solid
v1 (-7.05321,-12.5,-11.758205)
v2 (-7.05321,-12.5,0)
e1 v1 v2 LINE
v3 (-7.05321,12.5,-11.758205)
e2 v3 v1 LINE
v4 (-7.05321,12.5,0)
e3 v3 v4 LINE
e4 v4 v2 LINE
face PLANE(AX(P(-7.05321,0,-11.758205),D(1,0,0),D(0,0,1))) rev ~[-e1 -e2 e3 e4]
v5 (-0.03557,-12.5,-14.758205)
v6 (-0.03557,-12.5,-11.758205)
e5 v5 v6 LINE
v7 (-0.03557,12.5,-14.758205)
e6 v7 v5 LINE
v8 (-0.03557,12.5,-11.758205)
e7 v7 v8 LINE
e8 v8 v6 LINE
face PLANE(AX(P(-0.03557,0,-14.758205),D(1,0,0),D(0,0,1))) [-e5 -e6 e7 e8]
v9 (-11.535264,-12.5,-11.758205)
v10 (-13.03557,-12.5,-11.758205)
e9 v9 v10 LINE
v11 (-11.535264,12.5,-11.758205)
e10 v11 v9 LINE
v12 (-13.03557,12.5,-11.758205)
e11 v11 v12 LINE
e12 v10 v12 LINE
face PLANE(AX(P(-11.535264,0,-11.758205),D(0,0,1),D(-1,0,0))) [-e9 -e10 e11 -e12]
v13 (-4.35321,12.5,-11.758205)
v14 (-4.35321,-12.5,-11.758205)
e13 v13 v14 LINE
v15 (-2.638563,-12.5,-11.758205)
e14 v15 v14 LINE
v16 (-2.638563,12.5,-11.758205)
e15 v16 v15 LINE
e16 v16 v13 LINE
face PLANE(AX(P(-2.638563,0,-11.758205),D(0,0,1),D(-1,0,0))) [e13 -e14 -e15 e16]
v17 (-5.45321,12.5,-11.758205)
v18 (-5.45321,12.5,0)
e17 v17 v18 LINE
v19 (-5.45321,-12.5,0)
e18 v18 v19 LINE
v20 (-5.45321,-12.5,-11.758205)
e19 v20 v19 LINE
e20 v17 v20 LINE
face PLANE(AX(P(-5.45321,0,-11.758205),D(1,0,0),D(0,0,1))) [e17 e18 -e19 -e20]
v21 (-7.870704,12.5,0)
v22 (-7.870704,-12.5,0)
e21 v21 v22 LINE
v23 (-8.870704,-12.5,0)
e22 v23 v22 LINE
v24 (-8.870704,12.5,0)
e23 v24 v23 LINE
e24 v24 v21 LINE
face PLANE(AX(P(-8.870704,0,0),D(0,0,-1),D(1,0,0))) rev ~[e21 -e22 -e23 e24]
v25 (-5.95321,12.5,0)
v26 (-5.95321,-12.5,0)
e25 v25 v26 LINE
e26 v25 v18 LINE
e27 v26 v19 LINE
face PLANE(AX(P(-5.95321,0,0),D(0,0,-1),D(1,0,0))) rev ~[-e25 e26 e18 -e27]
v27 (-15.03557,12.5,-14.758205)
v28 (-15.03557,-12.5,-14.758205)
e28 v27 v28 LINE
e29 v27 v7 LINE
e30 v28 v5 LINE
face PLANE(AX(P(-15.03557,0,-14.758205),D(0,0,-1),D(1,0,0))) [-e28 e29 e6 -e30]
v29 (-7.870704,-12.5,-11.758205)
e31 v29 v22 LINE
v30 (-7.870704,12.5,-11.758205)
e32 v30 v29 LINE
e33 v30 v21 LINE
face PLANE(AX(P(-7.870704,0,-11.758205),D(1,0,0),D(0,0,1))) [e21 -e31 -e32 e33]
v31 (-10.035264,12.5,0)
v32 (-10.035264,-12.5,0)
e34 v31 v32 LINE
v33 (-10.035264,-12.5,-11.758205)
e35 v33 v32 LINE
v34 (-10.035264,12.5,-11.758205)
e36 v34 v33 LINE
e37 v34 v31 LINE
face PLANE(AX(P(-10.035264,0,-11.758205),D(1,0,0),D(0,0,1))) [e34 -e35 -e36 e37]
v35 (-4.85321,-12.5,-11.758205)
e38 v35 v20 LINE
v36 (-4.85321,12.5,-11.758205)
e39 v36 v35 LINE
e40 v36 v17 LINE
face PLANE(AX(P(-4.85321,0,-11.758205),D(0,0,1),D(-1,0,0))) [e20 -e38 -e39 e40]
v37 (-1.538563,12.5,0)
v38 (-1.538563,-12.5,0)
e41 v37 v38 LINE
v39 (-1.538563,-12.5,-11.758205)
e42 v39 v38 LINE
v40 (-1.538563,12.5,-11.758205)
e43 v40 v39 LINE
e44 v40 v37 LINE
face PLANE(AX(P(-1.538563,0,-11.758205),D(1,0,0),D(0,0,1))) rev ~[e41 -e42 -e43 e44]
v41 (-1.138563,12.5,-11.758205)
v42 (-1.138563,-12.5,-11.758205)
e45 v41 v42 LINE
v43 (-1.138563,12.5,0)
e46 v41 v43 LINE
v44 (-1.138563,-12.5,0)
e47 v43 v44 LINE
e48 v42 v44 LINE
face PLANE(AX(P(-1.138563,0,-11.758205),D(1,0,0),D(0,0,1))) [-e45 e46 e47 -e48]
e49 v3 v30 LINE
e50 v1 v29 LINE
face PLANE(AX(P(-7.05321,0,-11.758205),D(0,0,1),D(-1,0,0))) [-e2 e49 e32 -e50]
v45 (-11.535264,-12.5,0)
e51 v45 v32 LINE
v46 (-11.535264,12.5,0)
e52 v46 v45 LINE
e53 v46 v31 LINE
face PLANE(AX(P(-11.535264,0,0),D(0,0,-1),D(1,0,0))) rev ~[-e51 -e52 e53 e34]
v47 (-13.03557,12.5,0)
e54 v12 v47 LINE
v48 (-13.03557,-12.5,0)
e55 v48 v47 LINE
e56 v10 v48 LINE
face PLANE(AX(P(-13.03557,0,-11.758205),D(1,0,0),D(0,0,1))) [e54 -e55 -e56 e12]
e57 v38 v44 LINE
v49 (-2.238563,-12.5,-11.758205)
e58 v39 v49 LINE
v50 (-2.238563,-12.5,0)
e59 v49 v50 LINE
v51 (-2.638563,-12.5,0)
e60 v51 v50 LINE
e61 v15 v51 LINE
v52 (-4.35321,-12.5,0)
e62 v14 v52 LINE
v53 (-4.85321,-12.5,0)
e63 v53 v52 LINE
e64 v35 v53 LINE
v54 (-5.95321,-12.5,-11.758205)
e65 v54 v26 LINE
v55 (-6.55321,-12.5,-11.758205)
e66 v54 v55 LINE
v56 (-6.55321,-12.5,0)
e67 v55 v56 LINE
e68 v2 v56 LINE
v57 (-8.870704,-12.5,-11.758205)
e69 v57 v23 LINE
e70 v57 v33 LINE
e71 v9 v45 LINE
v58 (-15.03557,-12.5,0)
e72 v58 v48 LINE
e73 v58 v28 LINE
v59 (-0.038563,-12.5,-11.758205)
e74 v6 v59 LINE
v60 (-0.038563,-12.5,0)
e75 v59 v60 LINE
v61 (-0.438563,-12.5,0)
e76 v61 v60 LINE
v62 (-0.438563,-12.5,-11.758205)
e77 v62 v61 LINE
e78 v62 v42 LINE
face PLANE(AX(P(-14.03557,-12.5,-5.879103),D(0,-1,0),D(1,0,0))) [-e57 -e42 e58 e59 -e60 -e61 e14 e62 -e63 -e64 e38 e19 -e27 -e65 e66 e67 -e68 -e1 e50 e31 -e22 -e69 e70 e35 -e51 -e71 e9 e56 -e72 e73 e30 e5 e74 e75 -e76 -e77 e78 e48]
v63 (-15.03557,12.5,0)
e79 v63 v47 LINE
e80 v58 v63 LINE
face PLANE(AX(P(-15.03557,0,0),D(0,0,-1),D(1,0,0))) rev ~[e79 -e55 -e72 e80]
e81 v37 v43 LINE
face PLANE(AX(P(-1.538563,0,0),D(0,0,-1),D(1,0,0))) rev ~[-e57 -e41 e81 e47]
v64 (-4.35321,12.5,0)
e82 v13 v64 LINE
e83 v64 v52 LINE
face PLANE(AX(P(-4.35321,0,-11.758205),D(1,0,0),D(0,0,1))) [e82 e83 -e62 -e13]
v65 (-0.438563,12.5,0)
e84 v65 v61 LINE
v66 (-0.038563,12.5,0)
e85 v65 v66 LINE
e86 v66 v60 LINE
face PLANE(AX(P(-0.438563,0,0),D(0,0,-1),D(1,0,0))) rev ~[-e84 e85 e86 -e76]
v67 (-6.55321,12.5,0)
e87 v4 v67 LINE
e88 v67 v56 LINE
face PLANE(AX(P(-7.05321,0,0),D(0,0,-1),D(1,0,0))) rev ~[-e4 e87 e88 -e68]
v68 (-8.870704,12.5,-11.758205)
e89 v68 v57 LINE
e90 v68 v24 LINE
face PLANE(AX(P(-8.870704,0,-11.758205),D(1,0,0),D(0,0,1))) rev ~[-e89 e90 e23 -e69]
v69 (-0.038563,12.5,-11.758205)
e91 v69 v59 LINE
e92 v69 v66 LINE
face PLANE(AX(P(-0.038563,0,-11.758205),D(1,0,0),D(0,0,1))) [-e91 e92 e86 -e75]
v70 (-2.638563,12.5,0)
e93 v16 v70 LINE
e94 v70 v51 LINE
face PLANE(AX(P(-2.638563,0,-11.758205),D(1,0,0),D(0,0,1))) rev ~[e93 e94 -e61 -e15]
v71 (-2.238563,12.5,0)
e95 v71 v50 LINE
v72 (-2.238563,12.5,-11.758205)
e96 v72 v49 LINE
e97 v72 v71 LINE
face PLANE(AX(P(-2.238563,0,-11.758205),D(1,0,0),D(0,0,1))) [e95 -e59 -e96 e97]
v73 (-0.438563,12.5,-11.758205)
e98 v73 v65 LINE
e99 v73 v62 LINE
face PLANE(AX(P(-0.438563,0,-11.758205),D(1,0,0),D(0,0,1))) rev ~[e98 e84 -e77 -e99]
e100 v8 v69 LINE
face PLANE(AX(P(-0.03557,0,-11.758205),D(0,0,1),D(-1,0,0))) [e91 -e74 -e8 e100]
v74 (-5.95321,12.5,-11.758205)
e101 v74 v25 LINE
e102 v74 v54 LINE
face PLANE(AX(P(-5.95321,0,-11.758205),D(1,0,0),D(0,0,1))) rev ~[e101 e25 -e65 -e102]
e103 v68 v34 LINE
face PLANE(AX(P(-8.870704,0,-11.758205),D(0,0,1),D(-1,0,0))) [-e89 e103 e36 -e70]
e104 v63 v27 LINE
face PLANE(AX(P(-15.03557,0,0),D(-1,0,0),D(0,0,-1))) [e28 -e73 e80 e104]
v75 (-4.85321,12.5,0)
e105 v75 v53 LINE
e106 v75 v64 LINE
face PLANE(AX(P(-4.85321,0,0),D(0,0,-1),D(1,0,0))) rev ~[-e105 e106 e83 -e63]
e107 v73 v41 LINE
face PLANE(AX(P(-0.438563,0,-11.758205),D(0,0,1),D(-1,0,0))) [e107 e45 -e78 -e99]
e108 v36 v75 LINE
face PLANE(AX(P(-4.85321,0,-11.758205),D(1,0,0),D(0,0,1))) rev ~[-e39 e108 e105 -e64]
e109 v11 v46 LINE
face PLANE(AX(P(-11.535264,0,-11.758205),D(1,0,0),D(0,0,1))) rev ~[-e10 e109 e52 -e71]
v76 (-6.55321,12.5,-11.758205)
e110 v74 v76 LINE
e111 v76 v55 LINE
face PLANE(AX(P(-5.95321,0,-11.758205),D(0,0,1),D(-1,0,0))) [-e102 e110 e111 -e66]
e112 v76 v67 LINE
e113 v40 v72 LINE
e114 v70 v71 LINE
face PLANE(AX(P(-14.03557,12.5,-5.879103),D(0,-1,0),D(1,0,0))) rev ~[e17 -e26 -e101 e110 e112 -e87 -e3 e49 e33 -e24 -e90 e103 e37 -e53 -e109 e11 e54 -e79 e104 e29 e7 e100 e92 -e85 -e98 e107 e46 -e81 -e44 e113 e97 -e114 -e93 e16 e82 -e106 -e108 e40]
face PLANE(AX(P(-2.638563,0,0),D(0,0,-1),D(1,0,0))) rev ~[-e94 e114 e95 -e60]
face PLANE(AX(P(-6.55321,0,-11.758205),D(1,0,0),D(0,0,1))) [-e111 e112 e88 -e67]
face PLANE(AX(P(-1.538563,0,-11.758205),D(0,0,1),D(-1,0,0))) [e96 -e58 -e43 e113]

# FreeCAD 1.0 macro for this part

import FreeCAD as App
import Part
import Sketcher
Q = App.Units.Quantity

doc = App.newDocument("Part")
body = doc.addObject("PartDesign::Body", "Body")

sketch1 = doc.addObject("Sketcher::SketchObject", "Sketch")
body.addObject(sketch1)
sketch1.AttachmentSupport = (doc.XZ_Plane, [""])
sketch1.MapMode = "FlatFace"
sketch1.addGeometry([
    Part.LineSegment(App.Vector(-44.6, -22.9, 0), App.Vector(57, -22.9, 0)),
    Part.LineSegment(App.Vector(57, -22.9, 0), App.Vector(57, 7.6, 0)),
    Part.LineSegment(App.Vector(57, 7.6, 0), App.Vector(51.9, 7.6, 0)),
    Part.LineSegment(App.Vector(51.9, 7.6, 0), App.Vector(51.9, -17.8, 0)),
    Part.LineSegment(App.Vector(51.9, -17.8, 0), App.Vector(40.7, -17.8, 0)),
    Part.LineSegment(App.Vector(40.7, -17.8, 0), App.Vector(40.7, 7.6, 0)),
    Part.LineSegment(App.Vector(40.7, 7.6, 0), App.Vector(38.1, 7.6, 0)),
    Part.LineSegment(App.Vector(38.1, 7.6, 0), App.Vector(38.1, -17.8, 0)),
    Part.LineSegment(App.Vector(38.1, -17.8, 0), App.Vector(25.9, -17.8, 0)),
    Part.LineSegment(App.Vector(25.9, -17.8, 0), App.Vector(25.9, 7.6, 0)),
    Part.LineSegment(App.Vector(25.9, 7.6, 0), App.Vector(22.1, 7.6, 0)),
    Part.LineSegment(App.Vector(22.1, 7.6, 0), App.Vector(22.1, -17.8, 0)),
    Part.LineSegment(App.Vector(22.1, -17.8, 0), App.Vector(8.1, -17.8, 0)),
    Part.LineSegment(App.Vector(8.1, -17.8, 0), App.Vector(8.1, 7.6, 0)),
    Part.LineSegment(App.Vector(8.1, 7.6, 0), App.Vector(3.1, 7.6, 0)),
    Part.LineSegment(App.Vector(3.1, 7.6, 0), App.Vector(3.1, -17.8, 0)),
    Part.LineSegment(App.Vector(3.1, -17.8, 0), App.Vector(-17.8, -17.8, 0)),
    Part.LineSegment(App.Vector(-17.8, -17.8, 0), App.Vector(-17.8, 7.6, 0)),
    Part.LineSegment(App.Vector(-17.8, 7.6, 0), App.Vector(-20.4, 7.6, 0)),
    Part.LineSegment(App.Vector(-20.4, 7.6, 0), App.Vector(-20.4, -17.8, 0)),
    Part.LineSegment(App.Vector(-20.4, -17.8, 0), App.Vector(-27.5, -17.8, 0)),
    Part.LineSegment(App.Vector(-27.5, -17.8, 0), App.Vector(-27.5, 7.6, 0)),
    Part.LineSegment(App.Vector(-27.5, 7.6, 0), App.Vector(-31.3, 7.6, 0)),
    Part.LineSegment(App.Vector(-31.3, 7.6, 0), App.Vector(-31.3, -17.8, 0)),
    Part.LineSegment(App.Vector(-31.3, -17.8, 0), App.Vector(-39.5, -17.8, 0)),
    Part.LineSegment(App.Vector(-39.5, -17.8, 0), App.Vector(-39.5, 7.6, 0)),
    Part.LineSegment(App.Vector(-39.5, 7.6, 0), App.Vector(-44.6, 7.6, 0)),
    Part.LineSegment(App.Vector(-44.6, 7.6, 0), App.Vector(-44.6, -22.9, 0)),
], False)
sketch1.addConstraint([
    Sketcher.Constraint("Coincident", 0, 2, 1, 1),
    Sketcher.Constraint("Coincident", 1, 2, 2, 1),
    Sketcher.Constraint("Coincident", 2, 2, 3, 1),
    Sketcher.Constraint("Coincident", 3, 2, 4, 1),
    Sketcher.Constraint("Coincident", 4, 2, 5, 1),
    Sketcher.Constraint("Coincident", 5, 2, 6, 1),
    Sketcher.Constraint("Coincident", 6, 2, 7, 1),
    Sketcher.Constraint("Coincident", 7, 2, 8, 1),
    Sketcher.Constraint("Coincident", 8, 2, 9, 1),
    Sketcher.Constraint("Coincident", 9, 2, 10, 1),
    Sketcher.Constraint("Coincident", 10, 2, 11, 1),
    Sketcher.Constraint("Coincident", 11, 2, 12, 1),
    Sketcher.Constraint("Coincident", 12, 2, 13, 1),
    Sketcher.Constraint("Coincident", 13, 2, 14, 1),
    Sketcher.Constraint("Coincident", 14, 2, 15, 1),
    Sketcher.Constraint("Coincident", 15, 2, 16, 1),
    Sketcher.Constraint("Coincident", 16, 2, 17, 1),
    Sketcher.Constraint("Coincident", 17, 2, 18, 1),
    Sketcher.Constraint("Coincident", 18, 2, 19, 1),
    Sketcher.Constraint("Coincident", 19, 2, 20, 1),
    Sketcher.Constraint("Coincident", 20, 2, 21, 1),
    Sketcher.Constraint("Coincident", 21, 2, 22, 1),
    Sketcher.Constraint("Coincident", 22, 2, 23, 1),
    Sketcher.Constraint("Coincident", 23, 2, 24, 1),
    Sketcher.Constraint("Coincident", 24, 2, 25, 1),
    Sketcher.Constraint("Coincident", 25, 2, 26, 1),
    Sketcher.Constraint("Coincident", 26, 2, 27, 1),
    Sketcher.Constraint("Coincident", 27, 2, 0, 1),
    Sketcher.Constraint("Horizontal", 0),
    Sketcher.Constraint("Vertical", 1),
    Sketcher.Constraint("Horizontal", 2),
    Sketcher.Constraint("Vertical", 3),
    Sketcher.Constraint("Horizontal", 4),
    Sketcher.Constraint("Vertical", 5),
    Sketcher.Constraint("Horizontal", 6),
    Sketcher.Constraint("Vertical", 7),
    Sketcher.Constraint("Horizontal", 8),
    Sketcher.Constraint("Vertical", 9),
    Sketcher.Constraint("Horizontal", 10),
    Sketcher.Constraint("Vertical", 11),
    Sketcher.Constraint("Horizontal", 12),
    Sketcher.Constraint("Vertical", 13),
    Sketcher.Constraint("Horizontal", 14),
    Sketcher.Constraint("Vertical", 15),
    Sketcher.Constraint("Horizontal", 16),
    Sketcher.Constraint("Vertical", 17),
    Sketcher.Constraint("Horizontal", 18),
    Sketcher.Constraint("Vertical", 19),
    Sketcher.Constraint("Horizontal", 20),
    Sketcher.Constraint("Vertical", 21),
    Sketcher.Constraint("Horizontal", 22),
    Sketcher.Constraint("Vertical", 23),
    Sketcher.Constraint("Horizontal", 24),
    Sketcher.Constraint("Vertical", 25),
    Sketcher.Constraint("Horizontal", 26),
    Sketcher.Constraint("Vertical", 27),
    Sketcher.Constraint("Horizontal", 2, 2, 5, 2),
    Sketcher.Constraint("Horizontal", 4, 2, 7, 2),
    Sketcher.Constraint("Horizontal", 6, 2, 9, 2),
    Sketcher.Constraint("Horizontal", 8, 2, 11, 2),
    Sketcher.Constraint("Horizontal", 10, 2, 13, 2),
    Sketcher.Constraint("Horizontal", 12, 2, 15, 2),
    Sketcher.Constraint("Horizontal", 14, 2, 17, 2),
    Sketcher.Constraint("Horizontal", 16, 2, 19, 2),
    Sketcher.Constraint("Horizontal", 18, 2, 21, 2),
    Sketcher.Constraint("Horizontal", 20, 2, 23, 2),
    Sketcher.Constraint("Horizontal", 22, 2, 25, 2),
    Sketcher.Constraint("Equal", 2, 14),
    Sketcher.Constraint("Equal", 6, 18),
    Sketcher.Constraint("Equal", 10, 22),
    Sketcher.Constraint("Equal", 14, 26),
    Sketcher.Constraint("DistanceX", 0, 1, 0, 2, Q("101.6 mm")),
    Sketcher.Constraint("DistanceY", 3, 2, 3, 1, Q("25.4 mm")),
    Sketcher.Constraint("DistanceX", 2, 2, 2, 1, Q("5.08 mm")),
    Sketcher.Constraint("DistanceX", 6, 2, 6, 1, Q("2.54 mm")),
    Sketcher.Constraint("DistanceX", 10, 2, 10, 1, Q("3.81 mm")),
    Sketcher.Constraint("DistanceY", 1, 1, 1, 2, Q("30.48 mm")),
    Sketcher.Constraint("DistanceX", 4, 2, 4, 1, Q("11.248732 mm")),
    Sketcher.Constraint("DistanceX", 16, 2, 16, 1, Q("20.88111 mm")),
    Sketcher.Constraint("DistanceY", 0, 2, -1, 1, Q("22.885702 mm")),
    Sketcher.Constraint("DistanceX", 8, 2, 8, 1, Q("12.192005 mm")),
    Sketcher.Constraint("DistanceX", 12, 2, 12, 1, Q("13.976926 mm")),
    Sketcher.Constraint("DistanceX", 20, 2, 20, 1, Q("7.100453 mm")),
    Sketcher.Constraint("DistanceX", -1, 1, 0, 2, Q("56.98259 mm")),
])
pad1 = doc.addObject("PartDesign::Pad", "Pad")
body.addObject(pad1)
pad1.Profile = sketch1
pad1.Length = 40
body2 = doc.addObject("PartDesign::Body", "Body001")

sketch2 = doc.addObject("Sketcher::SketchObject", "Sketch001")
body2.addObject(sketch2)
sketch2.AttachmentSupport = (doc.getObject("XZ_Plane001"), [""])
sketch2.MapMode = "FlatFace"
sketch2.addGeometry([
    Part.LineSegment(App.Vector(-15.0356, 0, 0), App.Vector(-15.0356, -14.7582, 0)),
    Part.LineSegment(App.Vector(-15.0356, -14.7582, 0), App.Vector(-0.0356, -14.7582, 0)),
    Part.LineSegment(App.Vector(-0.0356, -14.7582, 0), App.Vector(-0.0356, -11.7582, 0)),
    Part.LineSegment(App.Vector(-0.0356, -11.7582, 0), App.Vector(-0.0386, -11.7582, 0)),
    Part.LineSegment(App.Vector(-0.0386, -11.7582, 0), App.Vector(-0.0386, 0, 0)),
    Part.LineSegment(App.Vector(-0.0386, 0, 0), App.Vector(-0.4386, 0, 0)),
    Part.LineSegment(App.Vector(-0.4386, 0, 0), App.Vector(-0.4386, -11.7582, 0)),
    Part.LineSegment(App.Vector(-0.4386, -11.7582, 0), App.Vector(-1.1386, -11.7582, 0)),
    Part.LineSegment(App.Vector(-1.1386, -11.7582, 0), App.Vector(-1.1386, 0, 0)),
    Part.LineSegment(App.Vector(-1.1386, 0, 0), App.Vector(-1.5386, 0, 0)),
    Part.LineSegment(App.Vector(-1.5386, 0, 0), App.Vector(-1.5386, -11.7582, 0)),
    Part.LineSegment(App.Vector(-1.5386, -11.7582, 0), App.Vector(-2.2386, -11.7582, 0)),
    Part.LineSegment(App.Vector(-2.2386, -11.7582, 0), App.Vector(-2.2386, 0, 0)),
    Part.LineSegment(App.Vector(-2.2386, 0, 0), App.Vector(-2.6386, 0, 0)),
    Part.LineSegment(App.Vector(-2.6386, 0, 0), App.Vector(-2.6386, -11.7582, 0)),
    Part.LineSegment(App.Vector(-2.6386, -11.7582, 0), App.Vector(-4.3532, -11.7582, 0)),
    Part.LineSegment(App.Vector(-4.3532, -11.7582, 0), App.Vector(-4.3532, 0, 0)),
    Part.LineSegment(App.Vector(-4.3532, 0, 0), App.Vector(-4.8532, 0, 0)),
    Part.LineSegment(App.Vector(-4.8532, 0, 0), App.Vector(-4.8532, -11.7582, 0)),
    Part.LineSegment(App.Vector(-4.8532, -11.7582, 0), App.Vector(-5.4532, -11.7582, 0)),
    Part.LineSegment(App.Vector(-5.4532, -11.7582, 0), App.Vector(-5.4532, 0, 0)),
    Part.LineSegment(App.Vector(-5.4532, 0, 0), App.Vector(-5.9532, 0, 0)),
    Part.LineSegment(App.Vector(-5.9532, 0, 0), App.Vector(-5.9532, -11.7582, 0)),
    Part.LineSegment(App.Vector(-5.9532, -11.7582, 0), App.Vector(-6.5532, -11.7582, 0)),
    Part.LineSegment(App.Vector(-6.5532, -11.7582, 0), App.Vector(-6.5532, 0, 0)),
    Part.LineSegment(App.Vector(-6.5532, 0, 0), App.Vector(-7.0532, 0, 0)),
    Part.LineSegment(App.Vector(-7.0532, 0, 0), App.Vector(-7.0532, -11.7582, 0)),
    Part.LineSegment(App.Vector(-7.0532, -11.7582, 0), App.Vector(-7.8707, -11.7582, 0)),
    Part.LineSegment(App.Vector(-7.8707, -11.7582, 0), App.Vector(-7.8707, 0, 0)),
    Part.LineSegment(App.Vector(-7.8707, 0, 0), App.Vector(-8.8707, 0, 0)),
    Part.LineSegment(App.Vector(-8.8707, 0, 0), App.Vector(-8.8707, -11.7582, 0)),
    Part.LineSegment(App.Vector(-8.8707, -11.7582, 0), App.Vector(-10.0353, -11.7582, 0)),
    Part.LineSegment(App.Vector(-10.0353, -11.7582, 0), App.Vector(-10.0353, 0, 0)),
    Part.LineSegment(App.Vector(-10.0353, 0, 0), App.Vector(-11.5353, 0, 0)),
    Part.LineSegment(App.Vector(-11.5353, 0, 0), App.Vector(-11.5353, -11.7582, 0)),
    Part.LineSegment(App.Vector(-11.5353, -11.7582, 0), App.Vector(-13.0356, -11.7582, 0)),
    Part.LineSegment(App.Vector(-13.0356, -11.7582, 0), App.Vector(-13.0356, 0, 0)),
    Part.LineSegment(App.Vector(-13.0356, 0, 0), App.Vector(-15.0356, 0, 0)),
], False)
sketch2.addConstraint([
    Sketcher.Constraint("Coincident", 0, 2, 1, 1),
    Sketcher.Constraint("Coincident", 1, 2, 2, 1),
    Sketcher.Constraint("Coincident", 2, 2, 3, 1),
    Sketcher.Constraint("Coincident", 3, 2, 4, 1),
    Sketcher.Constraint("Coincident", 4, 2, 5, 1),
    Sketcher.Constraint("Coincident", 5, 2, 6, 1),
    Sketcher.Constraint("Coincident", 6, 2, 7, 1),
    Sketcher.Constraint("Coincident", 7, 2, 8, 1),
    Sketcher.Constraint("Coincident", 8, 2, 9, 1),
    Sketcher.Constraint("Coincident", 9, 2, 10, 1),
    Sketcher.Constraint("Coincident", 10, 2, 11, 1),
    Sketcher.Constraint("Coincident", 11, 2, 12, 1),
    Sketcher.Constraint("Coincident", 12, 2, 13, 1),
    Sketcher.Constraint("Coincident", 13, 2, 14, 1),
    Sketcher.Constraint("Coincident", 14, 2, 15, 1),
    Sketcher.Constraint("Coincident", 15, 2, 16, 1),
    Sketcher.Constraint("Coincident", 16, 2, 17, 1),
    Sketcher.Constraint("Coincident", 17, 2, 18, 1),
    Sketcher.Constraint("Coincident", 18, 2, 19, 1),
    Sketcher.Constraint("Coincident", 19, 2, 20, 1),
    Sketcher.Constraint("Coincident", 20, 2, 21, 1),
    Sketcher.Constraint("Coincident", 21, 2, 22, 1),
    Sketcher.Constraint("Coincident", 22, 2, 23, 1),
    Sketcher.Constraint("Coincident", 23, 2, 24, 1),
    Sketcher.Constraint("Coincident", 24, 2, 25, 1),
    Sketcher.Constraint("Coincident", 25, 2, 26, 1),
    Sketcher.Constraint("Coincident", 26, 2, 27, 1),
    Sketcher.Constraint("Coincident", 27, 2, 28, 1),
    Sketcher.Constraint("Coincident", 28, 2, 29, 1),
    Sketcher.Constraint("Coincident", 29, 2, 30, 1),
    Sketcher.Constraint("Coincident", 30, 2, 31, 1),
    Sketcher.Constraint("Coincident", 31, 2, 32, 1),
    Sketcher.Constraint("Coincident", 32, 2, 33, 1),
    Sketcher.Constraint("Coincident", 33, 2, 34, 1),
    Sketcher.Constraint("Coincident", 34, 2, 35, 1),
    Sketcher.Constraint("Coincident", 35, 2, 36, 1),
    Sketcher.Constraint("Coincident", 36, 2, 37, 1),
    Sketcher.Constraint("Coincident", 37, 2, 0, 1),
    Sketcher.Constraint("Vertical", 0),
    Sketcher.Constraint("Horizontal", 1),
    Sketcher.Constraint("Vertical", 2),
    Sketcher.Constraint("Horizontal", 3),
    Sketcher.Constraint("Vertical", 4),
    Sketcher.Constraint("Horizontal", 5),
    Sketcher.Constraint("Vertical", 6),
    Sketcher.Constraint("Horizontal", 7),
    Sketcher.Constraint("Vertical", 8),
    Sketcher.Constraint("Horizontal", 9),
    Sketcher.Constraint("Vertical", 10),
    Sketcher.Constraint("Horizontal", 11),
    Sketcher.Constraint("Vertical", 12),
    Sketcher.Constraint("Horizontal", 13),
    Sketcher.Constraint("Vertical", 14),
    Sketcher.Constraint("Horizontal", 15),
    Sketcher.Constraint("Vertical", 16),
    Sketcher.Constraint("Horizontal", 17),
    Sketcher.Constraint("Vertical", 18),
    Sketcher.Constraint("Horizontal", 19),
    Sketcher.Constraint("Vertical", 20),
    Sketcher.Constraint("Horizontal", 21),
    Sketcher.Constraint("Vertical", 22),
    Sketcher.Constraint("Horizontal", 23),
    Sketcher.Constraint("Vertical", 24),
    Sketcher.Constraint("Horizontal", 25),
    Sketcher.Constraint("Vertical", 26),
    Sketcher.Constraint("Horizontal", 27),
    Sketcher.Constraint("Vertical", 28),
    Sketcher.Constraint("Horizontal", 29),
    Sketcher.Constraint("Vertical", 30),
    Sketcher.Constraint("Horizontal", 31),
    Sketcher.Constraint("Vertical", 32),
    Sketcher.Constraint("Horizontal", 33),
    Sketcher.Constraint("Vertical", 34),
    Sketcher.Constraint("Horizontal", 35),
    Sketcher.Constraint("Vertical", 36),
    Sketcher.Constraint("Horizontal", 37),
    Sketcher.Constraint("PointOnObject", 4, 2, -1),
    Sketcher.Constraint("PointOnObject", 8, 2, -1),
    Sketcher.Constraint("PointOnObject", 12, 2, -1),
    Sketcher.Constraint("PointOnObject", 16, 2, -1),
    Sketcher.Constraint("PointOnObject", 20, 2, -1),
    Sketcher.Constraint("PointOnObject", 24, 2, -1),
    Sketcher.Constraint("PointOnObject", 28, 2, -1),
    Sketcher.Constraint("PointOnObject", 32, 2, -1),
    Sketcher.Constraint("PointOnObject", 36, 2, -1),
    Sketcher.Constraint("Horizontal", 3, 2, 6, 2),
    Sketcher.Constraint("Horizontal", 7, 2, 10, 2),
    Sketcher.Constraint("Horizontal", 11, 2, 14, 2),
    Sketcher.Constraint("Horizontal", 15, 2, 18, 2),
    Sketcher.Constraint("Horizontal", 19, 2, 22, 2),
    Sketcher.Constraint("Horizontal", 23, 2, 26, 2),
    Sketcher.Constraint("Horizontal", 27, 2, 30, 2),
    Sketcher.Constraint("Horizontal", 31, 2, 34, 2),
    Sketcher.Constraint("Equal", 5, 9),
    Sketcher.Constraint("Equal", 7, 11),
    Sketcher.Constraint("Equal", 9, 13),
    Sketcher.Constraint("Equal", 17, 21),
    Sketcher.Constraint("Equal", 19, 23),
    Sketcher.Constraint("Equal", 21, 25),
    Sketcher.Constraint("DistanceX", 1, 1, 1, 2, Q("15 mm")),
    Sketcher.Constraint("DistanceX", 29, 2, 29, 1, Q("1 mm")),
    Sketcher.Constraint("DistanceX", 37, 2, 37, 1, Q("2 mm")),
    Sketcher.Constraint("DistanceY", 2, 1, 2, 2, Q("3 mm")),
    Sketcher.Constraint("DistanceX", 5, 2, 5, 1, Q("0.4 mm")),
    Sketcher.Constraint("DistanceX", 7, 2, 7, 1, Q("0.7 mm")),
    Sketcher.Constraint("DistanceX", 17, 2, 17, 1, Q("0.5 mm")),
    Sketcher.Constraint("DistanceX", 19, 2, 19, 1, Q("0.6 mm")),
    Sketcher.Constraint("DistanceX", 33, 2, 33, 1, Q("1.5 mm")),
    Sketcher.Constraint("DistanceX", 31, 2, 31, 1, Q("1.16456 mm")),
    Sketcher.Constraint("DistanceX", 3, 2, 3, 1, Q("0.002993 mm")),
    Sketcher.Constraint("DistanceX", 15, 2, 15, 1, Q("1.714648 mm")),
    Sketcher.Constraint("DistanceX", 27, 2, 27, 1, Q("0.817493 mm")),
    Sketcher.Constraint("DistanceY", 0, 2, 0, 1, Q("14.758205 mm")),
    Sketcher.Constraint("DistanceX", 0, 2, -1, 1, Q("15.03557 mm")),
])
pad2 = doc.addObject("PartDesign::Pad", "Pad001")
body2.addObject(pad2)
pad2.Profile = sketch2
pad2.Length = 25
pad2.Midplane = True
body.Visibility = False

doc.recompute()
